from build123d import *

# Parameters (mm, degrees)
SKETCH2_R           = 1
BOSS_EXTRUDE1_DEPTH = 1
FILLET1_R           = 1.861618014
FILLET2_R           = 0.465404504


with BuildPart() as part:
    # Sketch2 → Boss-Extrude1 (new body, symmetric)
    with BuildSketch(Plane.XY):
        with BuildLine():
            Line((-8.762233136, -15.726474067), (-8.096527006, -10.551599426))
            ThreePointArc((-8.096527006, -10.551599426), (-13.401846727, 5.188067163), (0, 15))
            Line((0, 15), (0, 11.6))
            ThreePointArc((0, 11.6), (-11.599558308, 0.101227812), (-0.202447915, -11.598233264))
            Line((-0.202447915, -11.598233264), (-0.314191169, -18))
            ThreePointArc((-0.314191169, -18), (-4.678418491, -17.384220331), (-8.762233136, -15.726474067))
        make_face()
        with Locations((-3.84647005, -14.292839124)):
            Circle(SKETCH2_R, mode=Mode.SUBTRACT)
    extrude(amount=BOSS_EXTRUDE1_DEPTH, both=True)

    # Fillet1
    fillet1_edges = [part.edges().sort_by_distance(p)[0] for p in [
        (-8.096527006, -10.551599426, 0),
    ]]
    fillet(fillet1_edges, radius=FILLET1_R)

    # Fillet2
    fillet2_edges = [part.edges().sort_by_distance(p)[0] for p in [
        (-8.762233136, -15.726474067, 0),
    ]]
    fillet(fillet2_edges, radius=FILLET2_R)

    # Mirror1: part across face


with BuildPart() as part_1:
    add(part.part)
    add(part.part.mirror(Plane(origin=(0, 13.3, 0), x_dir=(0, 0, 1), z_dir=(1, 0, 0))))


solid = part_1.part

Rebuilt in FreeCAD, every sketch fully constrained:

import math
import FreeCAD as App
import Part
import Sketcher
from FreeCAD import Vector
Q = App.Units.Quantity


def edges_at(feature, points):
    """Names of the edges that pass closest to the given points."""
    edges = feature.Shape.Edges
    near = lambda p: min(range(len(edges)), key=lambda i: edges[i].distToShape(Part.Vertex(*p))[0])
    return sorted({f"Edge{near(p) + 1}" for p in points})

doc = App.newDocument("Part")
body = doc.addObject("PartDesign::Body", "Body")

# Sketch on XY plane
sketch1 = body.newObject("Sketcher::SketchObject", "Sketch")
sketch1.AttachmentSupport = (doc.getObject("XY_Plane"), [""])
sketch1.MapMode = "FlatFace"
sketch1.addGeometry([
    Part.LineSegment(Vector(-8.096527, -10.551599, 0), Vector(-8.762233, -15.726474, 0)),  # 0
    Part.ArcOfCircle(Part.Circle(Vector(0, 0, 0), Vector(0, 0, 1), 18.002742), math.radians(-119.125), math.radians(-91)),  # 1
    Part.LineSegment(Vector(-0.314191, -18, 0), Vector(-0.202448, -11.598233, 0)),  # 2
    Part.ArcOfCircle(Part.Circle(Vector(0, 0, 0), Vector(0, 0, 1), 11.6), math.radians(90), math.radians(269)),  # 3
    Part.LineSegment(Vector(0, 11.6, 0), Vector(0, 15, 0)),  # 4
    Part.ArcOfCircle(Part.Circle(Vector(0, 0.941428, 0), Vector(0, 0, 1), 14.058572), math.radians(90), math.radians(234.836341)),  # 5
    Part.Circle(Vector(-3.84647, -14.292839, 0), Vector(0, 0, 1), 1),  # 6
], False)
sketch1.addConstraint([
    Sketcher.Constraint("Coincident", 0, 2, 1, 1),
    Sketcher.Constraint("Coincident", 1, 2, 2, 1),
    Sketcher.Constraint("Coincident", 2, 2, 3, 2),
    Sketcher.Constraint("Coincident", 3, 1, 4, 1),
    Sketcher.Constraint("Coincident", 4, 2, 5, 1),
    Sketcher.Constraint("Coincident", 5, 2, 0, 1),
    Sketcher.Constraint("Vertical", 4),
    Sketcher.Constraint("Coincident", 1, 3, -1, 1),
    Sketcher.Constraint("Coincident", 3, 3, -1, 1),
    Sketcher.Constraint("PointOnObject", 5, 3, -2),
    Sketcher.Constraint("PointOnObject", 3, 1, -2),
    Sketcher.Constraint("Diameter", 6, 2.0),
    Sketcher.Constraint("Radius", 3, 11.6),
    Sketcher.Constraint("Angle", 2, Q("89 deg")),
    Sketcher.Constraint("DistanceY", 4, 1, 4, 2, 3.4),
    Sketcher.Constraint("DistanceY", 1, 2, -1, 1, 18.0),
    Sketcher.Constraint("Radius", 1, 18.002742),
    Sketcher.Constraint("Radius", 5, 14.058572),
    Sketcher.Constraint("DistanceY", 5, 2, -1, 1, 10.551599),
    Sketcher.Constraint("DistanceX", 6, 3, -1, 1, 3.84647),
    Sketcher.Constraint("DistanceY", 6, 3, -1, 1, 14.292839),
    Sketcher.Constraint("DistanceX", 0, 2, 1, 2, 8.448042),
])
pad1 = body.newObject("PartDesign::Pad", "Pad")
pad1.Profile = sketch1
pad1.Length = 2
pad1.Midplane = True
doc.recompute()

fillet = body.newObject("PartDesign::Fillet", "Fillet")
fillet.Base = (pad1, edges_at(pad1, [(-8.097, -10.552, 0)]))
fillet.Radius = 1.861618
doc.recompute()

fillet2 = body.newObject("PartDesign::Fillet", "Fillet001")
fillet2.Base = (fillet, edges_at(fillet, [(-8.762, -15.726, 0)]))
fillet2.Radius = 0.465405
body2 = doc.addObject("PartDesign::Body", "Body001")
doc.recompute()

body2.BaseFeature = body
doc.recompute()

mirroring = doc.addObject("Part::Mirroring", "Mirroring")
mirroring.Source = body
mirroring.Base = Vector(0, 13.3, 0)
mirroring.Normal = Vector(1, 0, 0)
body3 = doc.addObject("PartDesign::Body", "Body002")
body3.BaseFeature = mirroring
boolean = body2.newObject("PartDesign::Boolean", "Boolean")
boolean.Type = "Fuse"
boolean.addObjects([body3])
doc.recompute()
mirroring.Visibility = False

doc.recompute()
